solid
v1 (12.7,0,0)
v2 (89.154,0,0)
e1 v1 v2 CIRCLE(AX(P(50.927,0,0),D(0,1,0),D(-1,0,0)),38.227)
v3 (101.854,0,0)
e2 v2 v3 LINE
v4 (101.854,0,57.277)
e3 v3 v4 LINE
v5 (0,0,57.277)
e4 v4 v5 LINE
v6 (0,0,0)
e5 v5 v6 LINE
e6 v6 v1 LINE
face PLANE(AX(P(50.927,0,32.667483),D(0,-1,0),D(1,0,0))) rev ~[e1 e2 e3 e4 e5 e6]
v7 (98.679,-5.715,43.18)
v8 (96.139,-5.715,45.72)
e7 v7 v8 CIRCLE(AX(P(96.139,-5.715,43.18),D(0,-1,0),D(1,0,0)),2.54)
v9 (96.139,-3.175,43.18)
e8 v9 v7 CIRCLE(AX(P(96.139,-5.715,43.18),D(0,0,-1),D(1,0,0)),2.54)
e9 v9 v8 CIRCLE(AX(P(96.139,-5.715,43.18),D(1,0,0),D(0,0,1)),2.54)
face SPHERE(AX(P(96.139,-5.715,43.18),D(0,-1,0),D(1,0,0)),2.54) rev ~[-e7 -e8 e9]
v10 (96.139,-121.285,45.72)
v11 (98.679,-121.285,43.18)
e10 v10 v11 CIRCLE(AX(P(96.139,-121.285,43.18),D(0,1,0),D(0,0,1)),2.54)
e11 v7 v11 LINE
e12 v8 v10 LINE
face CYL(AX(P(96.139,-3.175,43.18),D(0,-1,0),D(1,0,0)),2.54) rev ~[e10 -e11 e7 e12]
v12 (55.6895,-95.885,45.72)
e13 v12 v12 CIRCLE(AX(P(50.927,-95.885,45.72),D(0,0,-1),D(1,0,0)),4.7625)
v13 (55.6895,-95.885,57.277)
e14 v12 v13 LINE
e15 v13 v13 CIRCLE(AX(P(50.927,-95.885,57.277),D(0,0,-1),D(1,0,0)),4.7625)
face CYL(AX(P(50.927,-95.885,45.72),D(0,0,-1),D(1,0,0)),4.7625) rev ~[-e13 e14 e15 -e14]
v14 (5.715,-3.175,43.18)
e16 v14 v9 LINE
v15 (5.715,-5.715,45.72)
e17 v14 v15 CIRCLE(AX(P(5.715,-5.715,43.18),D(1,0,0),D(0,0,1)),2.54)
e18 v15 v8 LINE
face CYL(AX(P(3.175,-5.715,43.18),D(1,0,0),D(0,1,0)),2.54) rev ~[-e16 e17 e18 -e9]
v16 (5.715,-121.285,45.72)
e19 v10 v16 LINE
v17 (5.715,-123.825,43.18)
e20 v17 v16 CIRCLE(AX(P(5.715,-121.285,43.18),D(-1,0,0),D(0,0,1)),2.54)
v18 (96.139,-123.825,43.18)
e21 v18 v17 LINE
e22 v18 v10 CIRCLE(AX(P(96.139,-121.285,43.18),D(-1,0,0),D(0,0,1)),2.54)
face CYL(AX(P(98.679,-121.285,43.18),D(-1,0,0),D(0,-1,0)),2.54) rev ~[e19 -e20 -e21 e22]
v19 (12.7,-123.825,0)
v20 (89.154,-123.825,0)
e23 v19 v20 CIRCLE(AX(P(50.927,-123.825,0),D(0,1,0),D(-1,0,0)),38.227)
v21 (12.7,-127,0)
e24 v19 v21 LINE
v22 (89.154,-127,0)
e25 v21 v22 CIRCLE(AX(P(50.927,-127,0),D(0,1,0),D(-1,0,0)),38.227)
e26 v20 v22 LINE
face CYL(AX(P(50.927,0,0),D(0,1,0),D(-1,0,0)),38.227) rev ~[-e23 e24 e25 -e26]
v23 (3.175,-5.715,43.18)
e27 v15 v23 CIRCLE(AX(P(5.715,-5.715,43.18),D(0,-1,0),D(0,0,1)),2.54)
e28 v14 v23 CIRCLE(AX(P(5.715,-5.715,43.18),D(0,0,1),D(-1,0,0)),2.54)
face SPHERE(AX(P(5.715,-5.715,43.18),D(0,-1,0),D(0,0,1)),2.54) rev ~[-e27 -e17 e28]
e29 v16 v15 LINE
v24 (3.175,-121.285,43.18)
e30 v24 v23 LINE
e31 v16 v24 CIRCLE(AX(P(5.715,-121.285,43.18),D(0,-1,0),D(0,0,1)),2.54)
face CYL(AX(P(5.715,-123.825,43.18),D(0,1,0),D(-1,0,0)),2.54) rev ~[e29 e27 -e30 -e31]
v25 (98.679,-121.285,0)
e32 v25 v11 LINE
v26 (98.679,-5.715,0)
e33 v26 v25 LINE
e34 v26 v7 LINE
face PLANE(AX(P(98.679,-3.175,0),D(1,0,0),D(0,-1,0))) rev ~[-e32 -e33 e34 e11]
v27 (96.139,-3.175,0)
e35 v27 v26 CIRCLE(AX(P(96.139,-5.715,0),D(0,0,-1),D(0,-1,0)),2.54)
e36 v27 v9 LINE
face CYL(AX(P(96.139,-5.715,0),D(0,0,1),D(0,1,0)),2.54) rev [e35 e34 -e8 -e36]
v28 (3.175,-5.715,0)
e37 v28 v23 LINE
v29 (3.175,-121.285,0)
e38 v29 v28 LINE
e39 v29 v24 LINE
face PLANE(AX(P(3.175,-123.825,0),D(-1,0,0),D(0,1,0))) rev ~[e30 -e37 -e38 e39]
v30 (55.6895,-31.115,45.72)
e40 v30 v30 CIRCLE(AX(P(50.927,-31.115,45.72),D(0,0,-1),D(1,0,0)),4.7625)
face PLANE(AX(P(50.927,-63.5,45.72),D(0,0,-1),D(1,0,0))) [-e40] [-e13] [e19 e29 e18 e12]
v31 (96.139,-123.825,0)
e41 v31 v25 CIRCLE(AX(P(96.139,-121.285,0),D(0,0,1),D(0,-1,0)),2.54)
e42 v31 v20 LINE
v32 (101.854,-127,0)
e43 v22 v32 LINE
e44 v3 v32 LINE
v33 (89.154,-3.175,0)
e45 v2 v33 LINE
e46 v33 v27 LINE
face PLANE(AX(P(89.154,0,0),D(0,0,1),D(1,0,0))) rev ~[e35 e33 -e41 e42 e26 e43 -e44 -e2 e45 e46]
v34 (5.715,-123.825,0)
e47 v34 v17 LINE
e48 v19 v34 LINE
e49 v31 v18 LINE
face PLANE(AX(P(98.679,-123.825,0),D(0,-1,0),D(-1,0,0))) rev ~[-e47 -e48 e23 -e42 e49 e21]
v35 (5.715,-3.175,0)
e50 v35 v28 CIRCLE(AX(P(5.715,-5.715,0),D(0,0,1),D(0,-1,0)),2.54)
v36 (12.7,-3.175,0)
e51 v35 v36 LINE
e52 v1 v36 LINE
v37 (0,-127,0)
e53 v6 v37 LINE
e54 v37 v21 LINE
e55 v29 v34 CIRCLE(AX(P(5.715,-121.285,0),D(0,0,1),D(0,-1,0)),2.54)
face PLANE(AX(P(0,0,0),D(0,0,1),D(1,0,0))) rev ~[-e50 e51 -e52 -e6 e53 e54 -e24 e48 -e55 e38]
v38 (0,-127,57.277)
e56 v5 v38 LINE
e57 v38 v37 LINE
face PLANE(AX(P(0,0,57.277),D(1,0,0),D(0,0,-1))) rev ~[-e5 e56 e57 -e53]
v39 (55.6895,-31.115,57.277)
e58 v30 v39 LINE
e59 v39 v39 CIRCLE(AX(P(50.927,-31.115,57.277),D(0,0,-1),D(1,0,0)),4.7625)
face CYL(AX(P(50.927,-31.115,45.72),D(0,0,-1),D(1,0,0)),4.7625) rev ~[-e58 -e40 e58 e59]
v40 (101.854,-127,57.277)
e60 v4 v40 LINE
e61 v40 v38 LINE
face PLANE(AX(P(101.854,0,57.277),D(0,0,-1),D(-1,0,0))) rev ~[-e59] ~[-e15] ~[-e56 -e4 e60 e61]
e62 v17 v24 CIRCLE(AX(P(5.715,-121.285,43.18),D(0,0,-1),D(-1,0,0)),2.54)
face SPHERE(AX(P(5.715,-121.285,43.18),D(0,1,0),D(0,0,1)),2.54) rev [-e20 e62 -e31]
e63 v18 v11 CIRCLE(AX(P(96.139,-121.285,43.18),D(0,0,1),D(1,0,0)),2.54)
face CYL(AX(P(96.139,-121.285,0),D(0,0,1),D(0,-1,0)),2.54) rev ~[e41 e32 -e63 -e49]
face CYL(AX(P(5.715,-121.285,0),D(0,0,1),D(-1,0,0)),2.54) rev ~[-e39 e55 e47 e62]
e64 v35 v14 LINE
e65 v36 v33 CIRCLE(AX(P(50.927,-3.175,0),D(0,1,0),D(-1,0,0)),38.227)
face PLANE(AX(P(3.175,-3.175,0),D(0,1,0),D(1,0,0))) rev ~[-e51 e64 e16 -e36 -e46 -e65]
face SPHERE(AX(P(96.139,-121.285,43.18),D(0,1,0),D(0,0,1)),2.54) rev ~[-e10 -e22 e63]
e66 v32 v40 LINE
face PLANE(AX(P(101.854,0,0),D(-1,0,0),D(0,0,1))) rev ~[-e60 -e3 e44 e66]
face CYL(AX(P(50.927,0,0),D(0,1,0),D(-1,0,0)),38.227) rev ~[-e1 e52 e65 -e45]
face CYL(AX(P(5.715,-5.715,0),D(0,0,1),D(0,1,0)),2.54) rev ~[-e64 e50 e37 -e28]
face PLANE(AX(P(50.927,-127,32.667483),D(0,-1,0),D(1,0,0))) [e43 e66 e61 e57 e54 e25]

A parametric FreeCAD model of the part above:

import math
import FreeCAD as App
import Part
import Sketcher

V = App.Vector
Q = App.Units.Quantity


def edges_at(feature, points):
    """Names of the edges that pass closest to the given points."""
    edges = feature.Shape.Edges
    near = lambda p: min(range(len(edges)), key=lambda i: edges[i].distToShape(Part.Vertex(*p))[0])
    return sorted({f"Edge{near(p) + 1}" for p in points})

doc = App.newDocument("Part")
body = doc.addObject("PartDesign::Body", "Body")

# Sketch on XZ plane
sketch1 = doc.addObject("Sketcher::SketchObject", "Sketch")
body.addObject(sketch1)
sketch1.AttachmentSupport = (doc.XZ_Plane, [""])
sketch1.MapMode = "FlatFace"
sketch1.addGeometry(Part.LineSegment(V(0, 57, 0), V(0, 0, 0)), False)
sketch1.addGeometry(Part.LineSegment(V(0, 0, 0), V(13, 0, 0)), False)
sketch1.addGeometry(Part.ArcOfCircle(Part.Circle(V(51, 0, 0), V(0, 0, 1), 38), math.radians(0), math.radians(180)), False)
sketch1.addGeometry(Part.LineSegment(V(89, 0, 0), V(102, 0, 0)), False)
sketch1.addGeometry(Part.LineSegment(V(102, 0, 0), V(102, 57, 0)), False)
sketch1.addGeometry(Part.LineSegment(V(102, 57, 0), V(0, 57, 0)), False)
sketch1.addConstraint(Sketcher.Constraint("Coincident", 0, 2, 1, 1))
sketch1.addConstraint(Sketcher.Constraint("Coincident", 1, 2, 2, 2))
sketch1.addConstraint(Sketcher.Constraint("Coincident", 2, 1, 3, 1))
sketch1.addConstraint(Sketcher.Constraint("Coincident", 3, 2, 4, 1))
sketch1.addConstraint(Sketcher.Constraint("Coincident", 4, 2, 5, 1))
sketch1.addConstraint(Sketcher.Constraint("Coincident", 5, 2, 0, 1))
sketch1.addConstraint(Sketcher.Constraint("Vertical", 0))
sketch1.addConstraint(Sketcher.Constraint("Horizontal", 1))
sketch1.addConstraint(Sketcher.Constraint("Horizontal", 3))
sketch1.addConstraint(Sketcher.Constraint("Vertical", 4))
sketch1.addConstraint(Sketcher.Constraint("Horizontal", 5))
sketch1.addConstraint(Sketcher.Constraint("Coincident", 0, 2, -1, 1))
sketch1.addConstraint(Sketcher.Constraint("PointOnObject", 2, 3, -1))
sketch1.addConstraint(Sketcher.Constraint("PointOnObject", 2, 1, -1))
sketch1.addConstraint(Sketcher.Constraint("Equal", 1, 3))
sketch1.addConstraint(Sketcher.Constraint("DistanceX", 1, 1, 1, 2, Q("0.5 in")))
sketch1.addConstraint(Sketcher.Constraint("Radius", 2, Q("1.505 in")))
sketch1.addConstraint(Sketcher.Constraint("DistanceY", 0, 2, 0, 1, Q("2.255 in")))
pad1 = doc.addObject("PartDesign::Pad", "Pad")
body.addObject(pad1)
pad1.Profile = sketch1
pad1.Length = Q("5 in")

# Sketch on XY plane
sketch2 = doc.addObject("Sketcher::SketchObject", "Sketch001")
body.addObject(sketch2)
sketch2.AttachmentSupport = (doc.XY_Plane, [""])
sketch2.MapMode = "FlatFace"
sketch2.addGeometry(Part.LineSegment(V(3, -124, 0), V(3, -3, 0)), False)
sketch2.addGeometry(Part.LineSegment(V(3, -3, 0), V(99, -3, 0)), False)
sketch2.addGeometry(Part.LineSegment(V(99, -3, 0), V(99, -124, 0)), False)
sketch2.addGeometry(Part.LineSegment(V(99, -124, 0), V(3, -124, 0)), False)
sketch2.addConstraint(Sketcher.Constraint("Coincident", 0, 2, 1, 1))
sketch2.addConstraint(Sketcher.Constraint("Coincident", 1, 2, 2, 1))
sketch2.addConstraint(Sketcher.Constraint("Coincident", 2, 2, 3, 1))
sketch2.addConstraint(Sketcher.Constraint("Coincident", 3, 2, 0, 1))
sketch2.addConstraint(Sketcher.Constraint("Vertical", 0))
sketch2.addConstraint(Sketcher.Constraint("Horizontal", 1))
sketch2.addConstraint(Sketcher.Constraint("Vertical", 2))
sketch2.addConstraint(Sketcher.Constraint("Horizontal", 3))
sketch2.addConstraint(Sketcher.Constraint("DistanceX", 1, 1, 1, 2, Q("3.76 in")))
sketch2.addConstraint(Sketcher.Constraint("DistanceY", 0, 1, 0, 2, Q("4.75 in")))
sketch2.addConstraint(Sketcher.Constraint("DistanceX", -1, 1, 0, 2, Q("0.125 in")))
sketch2.addConstraint(Sketcher.Constraint("DistanceY", 0, 2, -1, 1, Q("0.125 in")))
pocket1 = doc.addObject("PartDesign::Pocket", "Pocket")
body.addObject(pocket1)
pocket1.Profile = sketch2
pocket1.Length = Q("1.8 in")
pocket1.Reversed = True
doc.recompute()

fillet = doc.addObject("PartDesign::Fillet", "Fillet")
body.addObject(fillet)
fillet.Base = (pocket1, edges_at(pocket1, [
    (3.175, -63.5, 45.72),
    (98.679, -63.5, 45.72),
    (50.927, -123.825, 45.72),
    (98.679, -123.825, 22.86),
    (3.175, -123.825, 22.86),
    (98.679, -3.175, 22.86),
    (50.927, -3.175, 45.72),
    (3.175, -3.175, 22.86),
]))
fillet.Radius = Q("0.1 in")

# Sketch on XY plane
sketch3 = doc.addObject("Sketcher::SketchObject", "Sketch002")
body.addObject(sketch3)
sketch3.AttachmentSupport = (doc.XY_Plane, [""])
sketch3.MapMode = "FlatFace"
sketch3.AttachmentOffset = App.Placement(V(0, 0, 1.8 * 25.4), App.Rotation())
sketch3.addGeometry(Part.Circle(V(50.9, -95.9, 0), V(0, 0, 1), 4.8), False)
sketch3.addGeometry(Part.Circle(V(50.9, -31.1, 0), V(0, 0, 1), 4.8), False)
sketch3.addConstraint(Sketcher.Constraint("Equal", 0, 1))
sketch3.addConstraint(Sketcher.Constraint("Vertical", 0, 3, 1, 3))
sketch3.addConstraint(Sketcher.Constraint("Diameter", 0, Q("0.375 in")))
sketch3.addConstraint(Sketcher.Constraint("DistanceY", 0, 3, 1, 3, Q("2.55 in")))
sketch3.addConstraint(Sketcher.Constraint("DistanceX", -1, 1, 0, 3, Q("2.005 in")))
sketch3.addConstraint(Sketcher.Constraint("DistanceY", 0, 3, -1, 1, Q("3.775 in")))
pocket2 = doc.addObject("PartDesign::Pocket", "Pocket001")
body.addObject(pocket2)
pocket2.Profile = sketch3
pocket2.Type = "ThroughAll"
pocket2.Reversed = True

doc.recompute()
